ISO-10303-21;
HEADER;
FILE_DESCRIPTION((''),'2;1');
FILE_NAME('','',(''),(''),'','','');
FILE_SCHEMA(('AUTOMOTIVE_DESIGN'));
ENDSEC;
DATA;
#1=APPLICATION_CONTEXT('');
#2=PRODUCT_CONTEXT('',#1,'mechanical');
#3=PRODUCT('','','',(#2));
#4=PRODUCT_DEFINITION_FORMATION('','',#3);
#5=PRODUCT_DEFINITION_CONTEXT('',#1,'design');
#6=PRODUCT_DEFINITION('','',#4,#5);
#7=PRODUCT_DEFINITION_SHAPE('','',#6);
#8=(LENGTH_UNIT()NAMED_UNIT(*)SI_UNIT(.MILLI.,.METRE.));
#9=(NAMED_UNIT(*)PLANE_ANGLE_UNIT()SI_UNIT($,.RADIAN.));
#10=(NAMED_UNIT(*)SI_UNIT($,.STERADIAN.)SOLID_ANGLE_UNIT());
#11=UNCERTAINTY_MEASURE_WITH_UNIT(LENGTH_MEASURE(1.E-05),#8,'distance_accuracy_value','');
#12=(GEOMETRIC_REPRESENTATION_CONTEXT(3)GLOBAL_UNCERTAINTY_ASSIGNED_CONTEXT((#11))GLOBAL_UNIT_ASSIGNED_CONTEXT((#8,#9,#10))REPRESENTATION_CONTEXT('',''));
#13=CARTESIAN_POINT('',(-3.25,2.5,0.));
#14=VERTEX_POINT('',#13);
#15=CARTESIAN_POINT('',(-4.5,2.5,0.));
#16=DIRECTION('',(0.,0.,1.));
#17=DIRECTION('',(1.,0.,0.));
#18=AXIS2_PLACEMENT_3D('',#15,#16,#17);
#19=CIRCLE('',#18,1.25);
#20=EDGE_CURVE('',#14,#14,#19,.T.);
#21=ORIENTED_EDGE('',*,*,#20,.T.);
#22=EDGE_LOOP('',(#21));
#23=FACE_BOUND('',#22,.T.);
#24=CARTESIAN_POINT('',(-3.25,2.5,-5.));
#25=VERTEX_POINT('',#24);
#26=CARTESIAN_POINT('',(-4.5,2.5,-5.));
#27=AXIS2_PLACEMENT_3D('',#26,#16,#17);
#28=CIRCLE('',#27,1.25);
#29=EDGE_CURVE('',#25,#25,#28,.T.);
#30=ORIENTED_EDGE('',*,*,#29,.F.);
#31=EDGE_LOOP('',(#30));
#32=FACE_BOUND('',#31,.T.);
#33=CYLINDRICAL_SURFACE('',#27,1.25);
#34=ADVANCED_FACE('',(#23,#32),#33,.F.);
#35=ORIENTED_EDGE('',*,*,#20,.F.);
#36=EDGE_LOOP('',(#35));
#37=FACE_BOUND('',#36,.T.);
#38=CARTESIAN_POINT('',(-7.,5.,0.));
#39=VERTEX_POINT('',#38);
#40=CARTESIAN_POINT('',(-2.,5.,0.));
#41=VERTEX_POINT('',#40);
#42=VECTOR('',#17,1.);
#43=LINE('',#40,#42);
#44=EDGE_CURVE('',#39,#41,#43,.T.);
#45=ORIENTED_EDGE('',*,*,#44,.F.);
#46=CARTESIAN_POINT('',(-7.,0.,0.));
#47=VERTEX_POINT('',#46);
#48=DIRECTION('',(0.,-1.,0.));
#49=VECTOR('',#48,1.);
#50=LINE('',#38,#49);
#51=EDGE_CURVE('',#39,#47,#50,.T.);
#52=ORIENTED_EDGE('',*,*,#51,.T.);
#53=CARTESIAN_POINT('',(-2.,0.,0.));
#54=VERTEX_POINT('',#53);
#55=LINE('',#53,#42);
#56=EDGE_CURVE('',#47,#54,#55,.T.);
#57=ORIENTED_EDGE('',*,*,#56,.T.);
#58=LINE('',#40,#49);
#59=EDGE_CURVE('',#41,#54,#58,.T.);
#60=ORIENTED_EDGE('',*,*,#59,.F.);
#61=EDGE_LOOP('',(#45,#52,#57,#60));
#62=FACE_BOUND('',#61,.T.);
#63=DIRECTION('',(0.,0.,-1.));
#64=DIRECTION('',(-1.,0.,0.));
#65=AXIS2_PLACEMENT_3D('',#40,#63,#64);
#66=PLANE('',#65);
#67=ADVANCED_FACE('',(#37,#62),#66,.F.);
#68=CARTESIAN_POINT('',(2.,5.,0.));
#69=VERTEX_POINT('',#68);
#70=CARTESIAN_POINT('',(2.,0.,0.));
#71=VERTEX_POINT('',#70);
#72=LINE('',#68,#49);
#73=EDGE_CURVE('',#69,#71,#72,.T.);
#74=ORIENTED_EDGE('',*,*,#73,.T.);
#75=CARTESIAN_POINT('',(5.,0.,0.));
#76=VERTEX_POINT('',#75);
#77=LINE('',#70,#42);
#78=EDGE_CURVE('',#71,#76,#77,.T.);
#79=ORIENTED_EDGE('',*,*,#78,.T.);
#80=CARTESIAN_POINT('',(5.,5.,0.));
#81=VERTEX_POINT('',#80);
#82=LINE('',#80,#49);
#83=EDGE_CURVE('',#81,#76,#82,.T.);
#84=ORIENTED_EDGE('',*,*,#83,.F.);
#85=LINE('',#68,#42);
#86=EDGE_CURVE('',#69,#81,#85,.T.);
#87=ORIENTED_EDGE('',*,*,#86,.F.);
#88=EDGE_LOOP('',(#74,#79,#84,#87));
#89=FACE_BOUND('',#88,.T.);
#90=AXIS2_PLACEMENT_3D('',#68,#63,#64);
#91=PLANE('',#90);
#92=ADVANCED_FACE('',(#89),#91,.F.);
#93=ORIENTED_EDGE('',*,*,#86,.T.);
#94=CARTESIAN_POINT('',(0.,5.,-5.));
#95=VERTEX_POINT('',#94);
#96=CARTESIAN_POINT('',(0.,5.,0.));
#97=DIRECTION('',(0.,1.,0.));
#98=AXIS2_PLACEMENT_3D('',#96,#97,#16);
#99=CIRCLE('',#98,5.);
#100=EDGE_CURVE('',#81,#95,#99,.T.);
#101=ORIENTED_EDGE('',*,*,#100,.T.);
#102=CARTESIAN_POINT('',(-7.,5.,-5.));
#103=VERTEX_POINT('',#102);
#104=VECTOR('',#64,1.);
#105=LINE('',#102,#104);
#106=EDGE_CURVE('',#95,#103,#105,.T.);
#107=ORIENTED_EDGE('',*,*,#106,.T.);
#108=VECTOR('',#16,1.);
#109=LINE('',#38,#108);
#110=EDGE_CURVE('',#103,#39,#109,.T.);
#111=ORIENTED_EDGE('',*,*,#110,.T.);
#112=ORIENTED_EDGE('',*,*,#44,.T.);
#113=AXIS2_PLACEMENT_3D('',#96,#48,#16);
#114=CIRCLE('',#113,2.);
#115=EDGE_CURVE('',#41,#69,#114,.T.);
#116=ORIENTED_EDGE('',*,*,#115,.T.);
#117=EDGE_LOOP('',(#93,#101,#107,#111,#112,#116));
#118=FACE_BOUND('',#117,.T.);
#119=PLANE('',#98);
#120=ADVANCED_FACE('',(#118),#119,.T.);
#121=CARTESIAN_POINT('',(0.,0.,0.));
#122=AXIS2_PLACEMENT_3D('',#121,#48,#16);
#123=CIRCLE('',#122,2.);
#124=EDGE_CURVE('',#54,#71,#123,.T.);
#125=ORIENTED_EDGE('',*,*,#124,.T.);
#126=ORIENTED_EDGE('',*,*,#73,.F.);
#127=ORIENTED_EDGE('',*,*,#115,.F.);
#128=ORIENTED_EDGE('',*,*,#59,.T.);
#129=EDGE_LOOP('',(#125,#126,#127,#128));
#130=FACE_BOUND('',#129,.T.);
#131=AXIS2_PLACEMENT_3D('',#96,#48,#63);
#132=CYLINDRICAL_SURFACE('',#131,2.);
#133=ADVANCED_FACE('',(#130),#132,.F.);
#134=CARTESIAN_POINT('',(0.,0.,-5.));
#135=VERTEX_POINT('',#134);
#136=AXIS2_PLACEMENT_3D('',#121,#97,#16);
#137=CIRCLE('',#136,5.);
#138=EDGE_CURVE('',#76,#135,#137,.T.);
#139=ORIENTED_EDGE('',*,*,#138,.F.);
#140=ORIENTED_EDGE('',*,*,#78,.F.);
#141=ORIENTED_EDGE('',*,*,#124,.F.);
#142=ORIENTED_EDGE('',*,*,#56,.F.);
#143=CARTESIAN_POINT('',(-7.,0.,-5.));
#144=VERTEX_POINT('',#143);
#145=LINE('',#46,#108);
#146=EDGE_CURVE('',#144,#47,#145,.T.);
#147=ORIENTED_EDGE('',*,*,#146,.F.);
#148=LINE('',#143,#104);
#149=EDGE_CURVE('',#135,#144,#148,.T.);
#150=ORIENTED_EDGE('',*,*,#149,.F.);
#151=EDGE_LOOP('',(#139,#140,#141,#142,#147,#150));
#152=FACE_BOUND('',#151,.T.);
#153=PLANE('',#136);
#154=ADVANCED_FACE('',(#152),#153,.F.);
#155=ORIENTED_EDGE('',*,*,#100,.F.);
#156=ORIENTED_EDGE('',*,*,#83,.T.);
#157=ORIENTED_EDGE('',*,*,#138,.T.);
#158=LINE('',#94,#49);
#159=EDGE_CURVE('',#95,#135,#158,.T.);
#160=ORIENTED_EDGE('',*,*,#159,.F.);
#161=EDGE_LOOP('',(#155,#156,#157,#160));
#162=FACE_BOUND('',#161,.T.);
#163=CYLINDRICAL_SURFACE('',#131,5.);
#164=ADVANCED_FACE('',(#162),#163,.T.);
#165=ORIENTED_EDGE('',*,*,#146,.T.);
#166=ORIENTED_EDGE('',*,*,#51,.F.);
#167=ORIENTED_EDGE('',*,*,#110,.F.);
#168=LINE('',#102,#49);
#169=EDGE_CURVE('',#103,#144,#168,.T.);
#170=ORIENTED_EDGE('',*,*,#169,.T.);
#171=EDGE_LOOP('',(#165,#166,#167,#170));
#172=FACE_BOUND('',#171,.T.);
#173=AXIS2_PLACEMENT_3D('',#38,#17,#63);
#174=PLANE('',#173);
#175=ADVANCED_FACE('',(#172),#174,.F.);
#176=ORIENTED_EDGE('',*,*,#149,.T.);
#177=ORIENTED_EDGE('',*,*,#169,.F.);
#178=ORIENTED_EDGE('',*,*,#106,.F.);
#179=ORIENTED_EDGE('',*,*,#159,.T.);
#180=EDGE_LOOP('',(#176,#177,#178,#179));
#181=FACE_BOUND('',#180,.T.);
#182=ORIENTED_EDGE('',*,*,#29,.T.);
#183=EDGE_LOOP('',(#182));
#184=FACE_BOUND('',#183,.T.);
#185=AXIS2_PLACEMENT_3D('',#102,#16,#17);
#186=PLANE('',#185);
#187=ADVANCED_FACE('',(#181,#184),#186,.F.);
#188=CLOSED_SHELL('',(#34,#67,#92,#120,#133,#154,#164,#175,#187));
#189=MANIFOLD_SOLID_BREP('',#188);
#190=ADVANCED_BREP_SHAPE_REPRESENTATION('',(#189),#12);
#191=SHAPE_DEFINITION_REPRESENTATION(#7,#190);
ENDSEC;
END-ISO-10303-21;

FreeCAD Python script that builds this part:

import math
import FreeCAD as App
import Part
import Sketcher

doc = App.newDocument("Part")
body = doc.addObject("PartDesign::Body", "Body")

# Sketch on XZ plane
sketch1 = doc.addObject("Sketcher::SketchObject", "Sketch")
body.addObject(sketch1)
sketch1.AttachmentSupport = (doc.XZ_Plane, [""])
sketch1.MapMode = "FlatFace"
sketch1.addGeometry([
    Part.LineSegment(App.Vector(2, 0, 0), App.Vector(5, 0, 0)),  # 0
    Part.ArcOfCircle(Part.Circle(App.Vector(0, 0, 0), App.Vector(0, 0, 1), 5), math.radians(-90), math.radians(0)),  # 1
    Part.LineSegment(App.Vector(0, -5, 0), App.Vector(-7, -5, 0)),  # 2
    Part.LineSegment(App.Vector(-7, -5, 0), App.Vector(-7, 0, 0)),  # 3
    Part.LineSegment(App.Vector(-7, 0, 0), App.Vector(-2, 0, 0)),  # 4
    Part.ArcOfCircle(Part.Circle(App.Vector(0, 0, 0), App.Vector(0, 0, 1), 2), math.radians(180), math.radians(360)),  # 5
], False)
sketch1.addConstraint([
    Sketcher.Constraint("Coincident", 0, 2, 1, 2),
    Sketcher.Constraint("Tangent", 1, 1, 2, 1),
    Sketcher.Constraint("Coincident", 2, 2, 3, 1),
    Sketcher.Constraint("Coincident", 3, 2, 4, 1),
    Sketcher.Constraint("Coincident", 4, 2, 5, 1),
    Sketcher.Constraint("Coincident", 5, 2, 0, 1),
    Sketcher.Constraint("Horizontal", 0),
    Sketcher.Constraint("Horizontal", 2),
    Sketcher.Constraint("Vertical", 3),
    Sketcher.Constraint("Horizontal", 4),
    Sketcher.Constraint("Coincident", 1, 3, -1, 1),
    Sketcher.Constraint("Coincident", 5, 3, -1, 1),
    Sketcher.Constraint("PointOnObject", 0, 2, -1),
    Sketcher.Constraint("PointOnObject", 3, 2, -1),
    Sketcher.Constraint("Equal", 4, 3),
    Sketcher.Constraint("Radius", 1, 5.0),
    Sketcher.Constraint("Radius", 5, 2.0),
])
pad1 = doc.addObject("PartDesign::Pad", "Pad")
body.addObject(pad1)
pad1.Profile = sketch1
pad1.Length = 5
pad1.Reversed = True

# Sketch on XY plane
sketch2 = doc.addObject("Sketcher::SketchObject", "Sketch001")
body.addObject(sketch2)
sketch2.AttachmentSupport = (doc.XY_Plane, [""])
sketch2.MapMode = "FlatFace"
sketch2.addGeometry(Part.Circle(App.Vector(-4.5, 2.5, 0), App.Vector(0, 0, 1), 1.25), False)
sketch2.addConstraint([
    Sketcher.Constraint("Diameter", 0, 2.5),
    Sketcher.Constraint("DistanceX", 0, 3, -1, 1, 4.5),
    Sketcher.Constraint("DistanceY", -1, 1, 0, 3, 2.5),
])
pocket1 = doc.addObject("PartDesign::Pocket", "Pocket")
body.addObject(pocket1)
pocket1.Profile = sketch2
pocket1.Length = 5

doc.recompute()
